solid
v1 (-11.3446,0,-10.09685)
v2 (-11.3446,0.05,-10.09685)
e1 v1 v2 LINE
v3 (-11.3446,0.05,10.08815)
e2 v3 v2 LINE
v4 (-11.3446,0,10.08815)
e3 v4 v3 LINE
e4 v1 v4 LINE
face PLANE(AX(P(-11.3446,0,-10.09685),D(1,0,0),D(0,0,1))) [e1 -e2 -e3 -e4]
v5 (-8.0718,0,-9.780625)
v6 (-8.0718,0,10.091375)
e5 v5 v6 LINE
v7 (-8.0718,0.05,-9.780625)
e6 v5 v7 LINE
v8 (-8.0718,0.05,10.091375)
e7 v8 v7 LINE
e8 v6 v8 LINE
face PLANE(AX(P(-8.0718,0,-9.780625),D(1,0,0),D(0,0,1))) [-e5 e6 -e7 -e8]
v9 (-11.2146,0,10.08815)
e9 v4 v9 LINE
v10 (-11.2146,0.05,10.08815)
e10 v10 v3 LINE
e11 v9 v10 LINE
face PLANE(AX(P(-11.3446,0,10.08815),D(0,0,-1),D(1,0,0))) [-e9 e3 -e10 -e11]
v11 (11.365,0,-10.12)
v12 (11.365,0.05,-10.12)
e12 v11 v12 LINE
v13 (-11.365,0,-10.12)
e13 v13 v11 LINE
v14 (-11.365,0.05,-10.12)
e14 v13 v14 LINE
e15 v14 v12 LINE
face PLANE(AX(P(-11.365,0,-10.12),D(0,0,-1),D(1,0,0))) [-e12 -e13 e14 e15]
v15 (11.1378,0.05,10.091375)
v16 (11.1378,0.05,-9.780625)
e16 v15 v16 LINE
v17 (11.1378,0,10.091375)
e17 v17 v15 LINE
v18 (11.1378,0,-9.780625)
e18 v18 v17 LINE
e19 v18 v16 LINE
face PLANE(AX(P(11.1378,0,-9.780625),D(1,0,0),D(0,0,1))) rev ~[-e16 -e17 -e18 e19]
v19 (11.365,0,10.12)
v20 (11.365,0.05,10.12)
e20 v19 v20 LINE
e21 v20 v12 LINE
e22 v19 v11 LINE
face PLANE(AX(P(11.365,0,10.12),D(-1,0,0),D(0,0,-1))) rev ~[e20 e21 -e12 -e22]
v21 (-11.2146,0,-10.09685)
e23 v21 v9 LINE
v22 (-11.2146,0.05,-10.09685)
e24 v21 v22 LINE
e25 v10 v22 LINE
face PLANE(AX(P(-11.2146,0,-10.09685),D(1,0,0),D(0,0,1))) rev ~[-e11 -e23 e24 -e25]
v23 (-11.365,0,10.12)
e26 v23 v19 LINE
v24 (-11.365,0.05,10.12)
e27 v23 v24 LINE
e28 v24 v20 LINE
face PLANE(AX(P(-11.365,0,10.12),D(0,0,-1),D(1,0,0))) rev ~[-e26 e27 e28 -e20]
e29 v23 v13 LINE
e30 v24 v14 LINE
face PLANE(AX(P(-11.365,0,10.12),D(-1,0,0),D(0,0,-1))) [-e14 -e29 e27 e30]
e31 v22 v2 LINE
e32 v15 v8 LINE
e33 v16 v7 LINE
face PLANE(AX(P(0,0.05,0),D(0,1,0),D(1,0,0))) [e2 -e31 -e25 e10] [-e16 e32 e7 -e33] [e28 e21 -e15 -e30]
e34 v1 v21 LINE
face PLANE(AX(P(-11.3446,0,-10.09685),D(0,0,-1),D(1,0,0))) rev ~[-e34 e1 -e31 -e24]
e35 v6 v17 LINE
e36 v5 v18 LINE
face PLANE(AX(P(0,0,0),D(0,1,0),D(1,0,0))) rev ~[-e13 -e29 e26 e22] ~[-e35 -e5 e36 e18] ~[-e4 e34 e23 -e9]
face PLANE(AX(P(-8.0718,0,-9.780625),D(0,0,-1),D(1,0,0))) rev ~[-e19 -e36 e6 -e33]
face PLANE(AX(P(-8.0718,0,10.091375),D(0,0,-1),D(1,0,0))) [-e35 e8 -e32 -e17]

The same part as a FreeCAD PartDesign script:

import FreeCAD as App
import Part
import Sketcher

doc = App.newDocument("Part")
body = doc.addObject("PartDesign::Body", "Body")

# Sketch on XZ plane
sketch1 = doc.addObject("Sketcher::SketchObject", "Sketch")
body.addObject(sketch1)
sketch1.AttachmentSupport = (doc.XZ_Plane, [""])
sketch1.MapMode = "FlatFace"
sketch1.addGeometry([
    Part.LineSegment(App.Vector(-11, -10, 0), App.Vector(-11, 10, 0)),
    Part.LineSegment(App.Vector(-11, 10, 0), App.Vector(11, 10, 0)),
    Part.LineSegment(App.Vector(11, 10, 0), App.Vector(11, -10, 0)),
    Part.LineSegment(App.Vector(11, -10, 0), App.Vector(-11, -10, 0)),
], False)
sketch1.addConstraint([
    Sketcher.Constraint("Coincident", 0, 2, 1, 1),
    Sketcher.Constraint("Coincident", 1, 2, 2, 1),
    Sketcher.Constraint("Coincident", 2, 2, 3, 1),
    Sketcher.Constraint("Coincident", 3, 2, 0, 1),
    Sketcher.Constraint("Vertical", 0),
    Sketcher.Constraint("Horizontal", 1),
    Sketcher.Constraint("Vertical", 2),
    Sketcher.Constraint("Horizontal", 3),
    Sketcher.Constraint("Symmetric", 0, 2, 2, 2, -1, 1),
    Sketcher.Constraint("DistanceX", 1, 1, 1, 2, 22.73),
    Sketcher.Constraint("DistanceY", 0, 1, 0, 2, 20.24),
])
pad1 = doc.addObject("PartDesign::Pad", "Pad")
body.addObject(pad1)
pad1.Profile = sketch1
pad1.Length = 0.05
pad1.Reversed = True

# Sketch on XZ plane
sketch2 = doc.addObject("Sketcher::SketchObject", "Sketch001")
body.addObject(sketch2)
sketch2.AttachmentSupport = (doc.XZ_Plane, [""])
sketch2.MapMode = "FlatFace"
sketch2.addGeometry([
    Part.LineSegment(App.Vector(-11.34, 10.09, 0), App.Vector(-11.34, -10.1, 0)),
    Part.LineSegment(App.Vector(-11.34, -10.1, 0), App.Vector(-11.21, -10.1, 0)),
    Part.LineSegment(App.Vector(-11.21, -10.1, 0), App.Vector(-11.21, 10.09, 0)),
    Part.LineSegment(App.Vector(-11.21, 10.09, 0), App.Vector(-11.34, 10.09, 0)),
], False)
sketch2.addConstraint([
    Sketcher.Constraint("Coincident", 0, 2, 1, 1),
    Sketcher.Constraint("Coincident", 1, 2, 2, 1),
    Sketcher.Constraint("Coincident", 2, 2, 3, 1),
    Sketcher.Constraint("Coincident", 3, 2, 0, 1),
    Sketcher.Constraint("Vertical", 0),
    Sketcher.Constraint("Horizontal", 1),
    Sketcher.Constraint("Vertical", 2),
    Sketcher.Constraint("Horizontal", 3),
    Sketcher.Constraint("DistanceX", 1, 1, 1, 2, 0.13),
    Sketcher.Constraint("DistanceY", 0, 2, 0, 1, 20.185),
    Sketcher.Constraint("DistanceX", 0, 2, -1, 1, 11.3446),
    Sketcher.Constraint("DistanceY", 0, 2, -1, 1, 10.09685),
])
pocket1 = doc.addObject("PartDesign::Pocket", "Pocket")
body.addObject(pocket1)
pocket1.Profile = sketch2
pocket1.Type = "ThroughAll"

# Sketch on XZ plane
sketch3 = doc.addObject("Sketcher::SketchObject", "Sketch002")
body.addObject(sketch3)
sketch3.AttachmentSupport = (doc.XZ_Plane, [""])
sketch3.MapMode = "FlatFace"
sketch3.addGeometry([
    Part.LineSegment(App.Vector(-8, 10, 0), App.Vector(-8, -10, 0)),
    Part.LineSegment(App.Vector(-8, -10, 0), App.Vector(11, -10, 0)),
    Part.LineSegment(App.Vector(11, -10, 0), App.Vector(11, 10, 0)),
    Part.LineSegment(App.Vector(11, 10, 0), App.Vector(-8, 10, 0)),
], False)
sketch3.addConstraint([
    Sketcher.Constraint("Coincident", 0, 2, 1, 1),
    Sketcher.Constraint("Coincident", 1, 2, 2, 1),
    Sketcher.Constraint("Coincident", 2, 2, 3, 1),
    Sketcher.Constraint("Coincident", 3, 2, 0, 1),
    Sketcher.Constraint("Vertical", 0),
    Sketcher.Constraint("Horizontal", 1),
    Sketcher.Constraint("Vertical", 2),
    Sketcher.Constraint("Horizontal", 3),
    Sketcher.Constraint("DistanceY", 0, 2, 0, 1, 19.872),
    Sketcher.Constraint("DistanceX", 1, 1, 1, 2, 19.2096),
    Sketcher.Constraint("DistanceX", 0, 2, -1, 1, 8.0718),
    Sketcher.Constraint("DistanceY", 0, 2, -1, 1, 9.780625),
])
pocket2 = doc.addObject("PartDesign::Pocket", "Pocket001")
body.addObject(pocket2)
pocket2.Profile = sketch3
pocket2.Type = "ThroughAll"

doc.recompute()
